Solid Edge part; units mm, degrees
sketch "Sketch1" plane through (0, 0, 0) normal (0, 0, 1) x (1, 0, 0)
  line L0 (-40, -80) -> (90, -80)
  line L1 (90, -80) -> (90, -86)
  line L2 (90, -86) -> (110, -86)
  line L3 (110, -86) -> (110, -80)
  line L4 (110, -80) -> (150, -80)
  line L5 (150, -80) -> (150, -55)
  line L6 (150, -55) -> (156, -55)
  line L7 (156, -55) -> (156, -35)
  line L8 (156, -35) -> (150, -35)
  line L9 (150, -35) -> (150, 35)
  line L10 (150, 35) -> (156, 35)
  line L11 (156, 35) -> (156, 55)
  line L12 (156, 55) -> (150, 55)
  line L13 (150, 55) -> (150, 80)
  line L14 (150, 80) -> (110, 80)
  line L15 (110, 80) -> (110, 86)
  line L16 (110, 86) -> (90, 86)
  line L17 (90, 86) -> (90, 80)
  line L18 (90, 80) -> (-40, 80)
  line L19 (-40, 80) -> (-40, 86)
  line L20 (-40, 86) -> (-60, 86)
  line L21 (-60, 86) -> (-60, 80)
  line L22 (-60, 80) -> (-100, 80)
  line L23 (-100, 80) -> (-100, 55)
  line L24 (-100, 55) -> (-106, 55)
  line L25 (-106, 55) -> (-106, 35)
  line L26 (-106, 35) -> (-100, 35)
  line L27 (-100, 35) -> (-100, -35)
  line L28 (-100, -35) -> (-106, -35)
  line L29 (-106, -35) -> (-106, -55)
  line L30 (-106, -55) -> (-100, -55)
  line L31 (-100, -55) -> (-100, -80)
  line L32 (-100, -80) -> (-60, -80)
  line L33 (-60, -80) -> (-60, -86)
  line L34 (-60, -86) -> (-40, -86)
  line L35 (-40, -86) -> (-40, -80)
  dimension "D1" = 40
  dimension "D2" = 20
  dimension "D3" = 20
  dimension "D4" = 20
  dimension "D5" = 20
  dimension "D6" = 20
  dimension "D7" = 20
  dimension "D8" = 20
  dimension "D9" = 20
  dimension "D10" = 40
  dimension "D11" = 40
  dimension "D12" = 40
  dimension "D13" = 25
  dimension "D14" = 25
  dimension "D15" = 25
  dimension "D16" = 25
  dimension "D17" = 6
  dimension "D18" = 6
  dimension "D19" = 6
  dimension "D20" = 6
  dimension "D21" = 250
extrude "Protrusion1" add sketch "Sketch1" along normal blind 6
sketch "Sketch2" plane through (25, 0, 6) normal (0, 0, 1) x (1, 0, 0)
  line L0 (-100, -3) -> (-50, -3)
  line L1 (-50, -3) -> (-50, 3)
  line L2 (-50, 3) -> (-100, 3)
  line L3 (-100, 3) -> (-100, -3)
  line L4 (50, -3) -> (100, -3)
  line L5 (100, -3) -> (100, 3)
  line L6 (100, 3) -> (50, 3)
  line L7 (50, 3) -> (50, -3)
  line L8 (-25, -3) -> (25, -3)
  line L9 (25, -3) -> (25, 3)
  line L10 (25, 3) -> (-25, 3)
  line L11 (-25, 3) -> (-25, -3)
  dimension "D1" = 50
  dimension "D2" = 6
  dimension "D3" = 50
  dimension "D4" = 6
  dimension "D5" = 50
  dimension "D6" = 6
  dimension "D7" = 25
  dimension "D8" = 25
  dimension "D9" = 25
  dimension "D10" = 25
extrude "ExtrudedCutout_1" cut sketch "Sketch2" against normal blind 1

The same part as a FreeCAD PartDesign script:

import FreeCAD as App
import Part
import Sketcher
from FreeCAD import Vector

doc = App.newDocument("Part")
body = doc.addObject("PartDesign::Body", "Body")

# Sketch on XY plane
sketch1 = body.newObject("Sketcher::SketchObject", "Sketch")
sketch1.AttachmentSupport = (doc.getObject("XY_Plane"), [""])
sketch1.MapMode = "FlatFace"
sketch1.addGeometry([
    Part.LineSegment(Vector(-40, -86, 0), Vector(-40, -80, 0)),  # 0
    Part.LineSegment(Vector(-40, -80, 0), Vector(90, -80, 0)),  # 1
    Part.LineSegment(Vector(90, -80, 0), Vector(90, -86, 0)),  # 2
    Part.LineSegment(Vector(90, -86, 0), Vector(110, -86, 0)),  # 3
    Part.LineSegment(Vector(110, -86, 0), Vector(110, -80, 0)),  # 4
    Part.LineSegment(Vector(110, -80, 0), Vector(150, -80, 0)),  # 5
    Part.LineSegment(Vector(150, -80, 0), Vector(150, -55, 0)),  # 6
    Part.LineSegment(Vector(150, -55, 0), Vector(156, -55, 0)),  # 7
    Part.LineSegment(Vector(156, -55, 0), Vector(156, -35, 0)),  # 8
    Part.LineSegment(Vector(156, -35, 0), Vector(150, -35, 0)),  # 9
    Part.LineSegment(Vector(150, -35, 0), Vector(150, 35, 0)),  # 10
    Part.LineSegment(Vector(150, 35, 0), Vector(156, 35, 0)),  # 11
    Part.LineSegment(Vector(156, 35, 0), Vector(156, 55, 0)),  # 12
    Part.LineSegment(Vector(156, 55, 0), Vector(150, 55, 0)),  # 13
    Part.LineSegment(Vector(150, 55, 0), Vector(150, 80, 0)),  # 14
    Part.LineSegment(Vector(150, 80, 0), Vector(110, 80, 0)),  # 15
    Part.LineSegment(Vector(110, 80, 0), Vector(110, 86, 0)),  # 16
    Part.LineSegment(Vector(110, 86, 0), Vector(90, 86, 0)),  # 17
    Part.LineSegment(Vector(90, 86, 0), Vector(90, 80, 0)),  # 18
    Part.LineSegment(Vector(90, 80, 0), Vector(-40, 80, 0)),  # 19
    Part.LineSegment(Vector(-40, 80, 0), Vector(-40, 86, 0)),  # 20
    Part.LineSegment(Vector(-40, 86, 0), Vector(-60, 86, 0)),  # 21
    Part.LineSegment(Vector(-60, 86, 0), Vector(-60, 80, 0)),  # 22
    Part.LineSegment(Vector(-60, 80, 0), Vector(-100, 80, 0)),  # 23
    Part.LineSegment(Vector(-100, 80, 0), Vector(-100, 55, 0)),  # 24
    Part.LineSegment(Vector(-100, 55, 0), Vector(-106, 55, 0)),  # 25
    Part.LineSegment(Vector(-106, 55, 0), Vector(-106, 35, 0)),  # 26
    Part.LineSegment(Vector(-106, 35, 0), Vector(-100, 35, 0)),  # 27
    Part.LineSegment(Vector(-100, 35, 0), Vector(-100, -35, 0)),  # 28
    Part.LineSegment(Vector(-100, -35, 0), Vector(-106, -35, 0)),  # 29
    Part.LineSegment(Vector(-106, -35, 0), Vector(-106, -55, 0)),  # 30
    Part.LineSegment(Vector(-106, -55, 0), Vector(-100, -55, 0)),  # 31
    Part.LineSegment(Vector(-100, -55, 0), Vector(-100, -80, 0)),  # 32
    Part.LineSegment(Vector(-100, -80, 0), Vector(-60, -80, 0)),  # 33
    Part.LineSegment(Vector(-60, -80, 0), Vector(-60, -86, 0)),  # 34
    Part.LineSegment(Vector(-60, -86, 0), Vector(-40, -86, 0)),  # 35
], False)
sketch1.addConstraint([
    Sketcher.Constraint("Coincident", 0, 2, 1, 1),
    Sketcher.Constraint("Coincident", 1, 2, 2, 1),
    Sketcher.Constraint("Coincident", 2, 2, 3, 1),
    Sketcher.Constraint("Coincident", 3, 2, 4, 1),
    Sketcher.Constraint("Coincident", 4, 2, 5, 1),
    Sketcher.Constraint("Coincident", 5, 2, 6, 1),
    Sketcher.Constraint("Coincident", 6, 2, 7, 1),
    Sketcher.Constraint("Coincident", 7, 2, 8, 1),
    Sketcher.Constraint("Coincident", 8, 2, 9, 1),
    Sketcher.Constraint("Coincident", 9, 2, 10, 1),
    Sketcher.Constraint("Coincident", 10, 2, 11, 1),
    Sketcher.Constraint("Coincident", 11, 2, 12, 1),
    Sketcher.Constraint("Coincident", 12, 2, 13, 1),
    Sketcher.Constraint("Coincident", 13, 2, 14, 1),
    Sketcher.Constraint("Coincident", 14, 2, 15, 1),
    Sketcher.Constraint("Coincident", 15, 2, 16, 1),
    Sketcher.Constraint("Coincident", 16, 2, 17, 1),
    Sketcher.Constraint("Coincident", 17, 2, 18, 1),
    Sketcher.Constraint("Coincident", 18, 2, 19, 1),
    Sketcher.Constraint("Coincident", 19, 2, 20, 1),
    Sketcher.Constraint("Coincident", 20, 2, 21, 1),
    Sketcher.Constraint("Coincident", 21, 2, 22, 1),
    Sketcher.Constraint("Coincident", 22, 2, 23, 1),
    Sketcher.Constraint("Coincident", 23, 2, 24, 1),
    Sketcher.Constraint("Coincident", 24, 2, 25, 1),
    Sketcher.Constraint("Coincident", 25, 2, 26, 1),
    Sketcher.Constraint("Coincident", 26, 2, 27, 1),
    Sketcher.Constraint("Coincident", 27, 2, 28, 1),
    Sketcher.Constraint("Coincident", 28, 2, 29, 1),
    Sketcher.Constraint("Coincident", 29, 2, 30, 1),
    Sketcher.Constraint("Coincident", 30, 2, 31, 1),
    Sketcher.Constraint("Coincident", 31, 2, 32, 1),
    Sketcher.Constraint("Coincident", 32, 2, 33, 1),
    Sketcher.Constraint("Coincident", 33, 2, 34, 1),
    Sketcher.Constraint("Coincident", 34, 2, 35, 1),
    Sketcher.Constraint("Coincident", 35, 2, 0, 1),
    Sketcher.Constraint("Vertical", 0),
    Sketcher.Constraint("Horizontal", 1),
    Sketcher.Constraint("Vertical", 2),
    Sketcher.Constraint("Horizontal", 3),
    Sketcher.Constraint("Vertical", 4),
    Sketcher.Constraint("Horizontal", 5),
    Sketcher.Constraint("Vertical", 6),
    Sketcher.Constraint("Horizontal", 7),
    Sketcher.Constraint("Vertical", 8),
    Sketcher.Constraint("Horizontal", 9),
    Sketcher.Constraint("Vertical", 10),
    Sketcher.Constraint("Horizontal", 11),
    Sketcher.Constraint("Vertical", 12),
    Sketcher.Constraint("Horizontal", 13),
    Sketcher.Constraint("Vertical", 14),
    Sketcher.Constraint("Horizontal", 15),
    Sketcher.Constraint("Vertical", 16),
    Sketcher.Constraint("Horizontal", 17),
    Sketcher.Constraint("Vertical", 18),
    Sketcher.Constraint("Horizontal", 19),
    Sketcher.Constraint("Vertical", 20),
    Sketcher.Constraint("Horizontal", 21),
    Sketcher.Constraint("Vertical", 22),
    Sketcher.Constraint("Horizontal", 23),
    Sketcher.Constraint("Vertical", 24),
    Sketcher.Constraint("Horizontal", 25),
    Sketcher.Constraint("Vertical", 26),
    Sketcher.Constraint("Horizontal", 27),
    Sketcher.Constraint("Vertical", 28),
    Sketcher.Constraint("Horizontal", 29),
    Sketcher.Constraint("Vertical", 30),
    Sketcher.Constraint("Horizontal", 31),
    Sketcher.Constraint("Vertical", 32),
    Sketcher.Constraint("Horizontal", 33),
    Sketcher.Constraint("Vertical", 34),
    Sketcher.Constraint("Horizontal", 35),
    Sketcher.Constraint("Symmetric", 8, 2, 11, 2, -1),
    Sketcher.Constraint("Symmetric", 6, 2, 13, 2, -1),
    Sketcher.Constraint("Symmetric", 4, 2, 15, 2, -1),
    Sketcher.Constraint("Symmetric", 2, 2, 17, 2, -1),
    Sketcher.Constraint("Symmetric", 0, 2, 19, 2, -1),
    Sketcher.Constraint("Symmetric", 26, 2, 29, 2, -1),
    Sketcher.Constraint("Symmetric", 24, 2, 31, 2, -1),
    Sketcher.Constraint("Symmetric", 22, 2, 33, 2, -1),
    Sketcher.Constraint("Horizontal", 1, 2, 4, 2),
    Sketcher.Constraint("Horizontal", 17, 2, 20, 2),
    Sketcher.Constraint("Horizontal", 19, 2, 22, 2),
    Sketcher.Constraint("Horizontal", 13, 2, 24, 2),
    Sketcher.Constraint("Horizontal", 11, 2, 26, 2),
    Sketcher.Constraint("Horizontal", 3, 2, 34, 2),
    Sketcher.Constraint("Vertical", 6, 2, 9, 2),
    Sketcher.Constraint("Vertical", 24, 2, 27, 2),
    Sketcher.Constraint("Equal", 17, 21),
    Sketcher.Constraint("Equal", 15, 23),
    Sketcher.Constraint("Equal", 13, 25),
    Sketcher.Constraint("Equal", 31, 0),
    Sketcher.Constraint("Equal", 35, 8),
    Sketcher.Constraint("DistanceX", 5, 1, 5, 2, 40.0),
    Sketcher.Constraint("DistanceX", 0, 2, -1, 1, 40.0),
    Sketcher.Constraint("DistanceX", -1, 1, 1, 2, 90.0),
    Sketcher.Constraint("DistanceX", -1, 1, 3, 2, 110.0),
    Sketcher.Constraint("DistanceX", -1, 1, 7, 2, 156.0),
    Sketcher.Constraint("DistanceY", 6, 2, 10, 2, 90.0),
    Sketcher.Constraint("DistanceY", 6, 1, 6, 2, 25.0),
])
pad1 = body.newObject("PartDesign::Pad", "Pad")
pad1.Profile = sketch1
pad1.Length = 6

# Sketch on XY plane
sketch2 = body.newObject("Sketcher::SketchObject", "Sketch001")
sketch2.AttachmentSupport = (doc.getObject("XY_Plane"), [""])
sketch2.MapMode = "FlatFace"
sketch2.AttachmentOffset = App.Placement(Vector(0, 0, 6), App.Rotation())
sketch2.addGeometry([
    Part.LineSegment(Vector(-75, 3, 0), Vector(-75, -3, 0)),  # 0
    Part.LineSegment(Vector(-75, -3, 0), Vector(-25, -3, 0)),  # 1
    Part.LineSegment(Vector(-25, -3, 0), Vector(-25, 3, 0)),  # 2
    Part.LineSegment(Vector(-25, 3, 0), Vector(-75, 3, 0)),  # 3
    Part.LineSegment(Vector(75, 3, 0), Vector(75, -3, 0)),  # 4
    Part.LineSegment(Vector(75, -3, 0), Vector(125, -3, 0)),  # 5
    Part.LineSegment(Vector(125, -3, 0), Vector(125, 3, 0)),  # 6
    Part.LineSegment(Vector(125, 3, 0), Vector(75, 3, 0)),  # 7
    Part.LineSegment(Vector(0, 3, 0), Vector(0, -3, 0)),  # 8
    Part.LineSegment(Vector(0, -3, 0), Vector(50, -3, 0)),  # 9
    Part.LineSegment(Vector(50, -3, 0), Vector(50, 3, 0)),  # 10
    Part.LineSegment(Vector(50, 3, 0), Vector(0, 3, 0)),  # 11
], False)
sketch2.addConstraint([
    Sketcher.Constraint("Coincident", 0, 2, 1, 1),
    Sketcher.Constraint("Coincident", 1, 2, 2, 1),
    Sketcher.Constraint("Coincident", 2, 2, 3, 1),
    Sketcher.Constraint("Coincident", 3, 2, 0, 1),
    Sketcher.Constraint("Coincident", 4, 2, 5, 1),
    Sketcher.Constraint("Coincident", 5, 2, 6, 1),
    Sketcher.Constraint("Coincident", 6, 2, 7, 1),
    Sketcher.Constraint("Coincident", 7, 2, 4, 1),
    Sketcher.Constraint("Coincident", 8, 2, 9, 1),
    Sketcher.Constraint("Coincident", 9, 2, 10, 1),
    Sketcher.Constraint("Coincident", 10, 2, 11, 1),
    Sketcher.Constraint("Coincident", 11, 2, 8, 1),
    Sketcher.Constraint("Vertical", 0),
    Sketcher.Constraint("Horizontal", 1),
    Sketcher.Constraint("Vertical", 2),
    Sketcher.Constraint("Horizontal", 3),
    Sketcher.Constraint("Vertical", 4),
    Sketcher.Constraint("Horizontal", 5),
    Sketcher.Constraint("Vertical", 6),
    Sketcher.Constraint("Horizontal", 7),
    Sketcher.Constraint("Vertical", 8),
    Sketcher.Constraint("Horizontal", 9),
    Sketcher.Constraint("Vertical", 10),
    Sketcher.Constraint("Horizontal", 11),
    Sketcher.Constraint("Symmetric", 3, 2, 4, 2, -1, 1),
    Sketcher.Constraint("Symmetric", 8, 2, 11, 2, -1, 1),
    Sketcher.Constraint("Horizontal", 1, 2, 4, 2),
    Sketcher.Constraint("Horizontal", 3, 2, 6, 2),
    Sketcher.Constraint("Horizontal", 5, 2, 8, 2),
    Sketcher.Constraint("Equal", 3, 5),
    Sketcher.Constraint("Equal", 7, 9),
    Sketcher.Constraint("DistanceX", 1, 1, 1, 2, 50.0),
    Sketcher.Constraint("DistanceX", 1, 2, 4, 2, 100.0),
    Sketcher.Constraint("DistanceY", 0, 2, 0, 1, 6.0),
])
pocket1 = body.newObject("PartDesign::Pocket", "Pocket")
pocket1.Profile = sketch2
pocket1.Length = 1

doc.recompute()
